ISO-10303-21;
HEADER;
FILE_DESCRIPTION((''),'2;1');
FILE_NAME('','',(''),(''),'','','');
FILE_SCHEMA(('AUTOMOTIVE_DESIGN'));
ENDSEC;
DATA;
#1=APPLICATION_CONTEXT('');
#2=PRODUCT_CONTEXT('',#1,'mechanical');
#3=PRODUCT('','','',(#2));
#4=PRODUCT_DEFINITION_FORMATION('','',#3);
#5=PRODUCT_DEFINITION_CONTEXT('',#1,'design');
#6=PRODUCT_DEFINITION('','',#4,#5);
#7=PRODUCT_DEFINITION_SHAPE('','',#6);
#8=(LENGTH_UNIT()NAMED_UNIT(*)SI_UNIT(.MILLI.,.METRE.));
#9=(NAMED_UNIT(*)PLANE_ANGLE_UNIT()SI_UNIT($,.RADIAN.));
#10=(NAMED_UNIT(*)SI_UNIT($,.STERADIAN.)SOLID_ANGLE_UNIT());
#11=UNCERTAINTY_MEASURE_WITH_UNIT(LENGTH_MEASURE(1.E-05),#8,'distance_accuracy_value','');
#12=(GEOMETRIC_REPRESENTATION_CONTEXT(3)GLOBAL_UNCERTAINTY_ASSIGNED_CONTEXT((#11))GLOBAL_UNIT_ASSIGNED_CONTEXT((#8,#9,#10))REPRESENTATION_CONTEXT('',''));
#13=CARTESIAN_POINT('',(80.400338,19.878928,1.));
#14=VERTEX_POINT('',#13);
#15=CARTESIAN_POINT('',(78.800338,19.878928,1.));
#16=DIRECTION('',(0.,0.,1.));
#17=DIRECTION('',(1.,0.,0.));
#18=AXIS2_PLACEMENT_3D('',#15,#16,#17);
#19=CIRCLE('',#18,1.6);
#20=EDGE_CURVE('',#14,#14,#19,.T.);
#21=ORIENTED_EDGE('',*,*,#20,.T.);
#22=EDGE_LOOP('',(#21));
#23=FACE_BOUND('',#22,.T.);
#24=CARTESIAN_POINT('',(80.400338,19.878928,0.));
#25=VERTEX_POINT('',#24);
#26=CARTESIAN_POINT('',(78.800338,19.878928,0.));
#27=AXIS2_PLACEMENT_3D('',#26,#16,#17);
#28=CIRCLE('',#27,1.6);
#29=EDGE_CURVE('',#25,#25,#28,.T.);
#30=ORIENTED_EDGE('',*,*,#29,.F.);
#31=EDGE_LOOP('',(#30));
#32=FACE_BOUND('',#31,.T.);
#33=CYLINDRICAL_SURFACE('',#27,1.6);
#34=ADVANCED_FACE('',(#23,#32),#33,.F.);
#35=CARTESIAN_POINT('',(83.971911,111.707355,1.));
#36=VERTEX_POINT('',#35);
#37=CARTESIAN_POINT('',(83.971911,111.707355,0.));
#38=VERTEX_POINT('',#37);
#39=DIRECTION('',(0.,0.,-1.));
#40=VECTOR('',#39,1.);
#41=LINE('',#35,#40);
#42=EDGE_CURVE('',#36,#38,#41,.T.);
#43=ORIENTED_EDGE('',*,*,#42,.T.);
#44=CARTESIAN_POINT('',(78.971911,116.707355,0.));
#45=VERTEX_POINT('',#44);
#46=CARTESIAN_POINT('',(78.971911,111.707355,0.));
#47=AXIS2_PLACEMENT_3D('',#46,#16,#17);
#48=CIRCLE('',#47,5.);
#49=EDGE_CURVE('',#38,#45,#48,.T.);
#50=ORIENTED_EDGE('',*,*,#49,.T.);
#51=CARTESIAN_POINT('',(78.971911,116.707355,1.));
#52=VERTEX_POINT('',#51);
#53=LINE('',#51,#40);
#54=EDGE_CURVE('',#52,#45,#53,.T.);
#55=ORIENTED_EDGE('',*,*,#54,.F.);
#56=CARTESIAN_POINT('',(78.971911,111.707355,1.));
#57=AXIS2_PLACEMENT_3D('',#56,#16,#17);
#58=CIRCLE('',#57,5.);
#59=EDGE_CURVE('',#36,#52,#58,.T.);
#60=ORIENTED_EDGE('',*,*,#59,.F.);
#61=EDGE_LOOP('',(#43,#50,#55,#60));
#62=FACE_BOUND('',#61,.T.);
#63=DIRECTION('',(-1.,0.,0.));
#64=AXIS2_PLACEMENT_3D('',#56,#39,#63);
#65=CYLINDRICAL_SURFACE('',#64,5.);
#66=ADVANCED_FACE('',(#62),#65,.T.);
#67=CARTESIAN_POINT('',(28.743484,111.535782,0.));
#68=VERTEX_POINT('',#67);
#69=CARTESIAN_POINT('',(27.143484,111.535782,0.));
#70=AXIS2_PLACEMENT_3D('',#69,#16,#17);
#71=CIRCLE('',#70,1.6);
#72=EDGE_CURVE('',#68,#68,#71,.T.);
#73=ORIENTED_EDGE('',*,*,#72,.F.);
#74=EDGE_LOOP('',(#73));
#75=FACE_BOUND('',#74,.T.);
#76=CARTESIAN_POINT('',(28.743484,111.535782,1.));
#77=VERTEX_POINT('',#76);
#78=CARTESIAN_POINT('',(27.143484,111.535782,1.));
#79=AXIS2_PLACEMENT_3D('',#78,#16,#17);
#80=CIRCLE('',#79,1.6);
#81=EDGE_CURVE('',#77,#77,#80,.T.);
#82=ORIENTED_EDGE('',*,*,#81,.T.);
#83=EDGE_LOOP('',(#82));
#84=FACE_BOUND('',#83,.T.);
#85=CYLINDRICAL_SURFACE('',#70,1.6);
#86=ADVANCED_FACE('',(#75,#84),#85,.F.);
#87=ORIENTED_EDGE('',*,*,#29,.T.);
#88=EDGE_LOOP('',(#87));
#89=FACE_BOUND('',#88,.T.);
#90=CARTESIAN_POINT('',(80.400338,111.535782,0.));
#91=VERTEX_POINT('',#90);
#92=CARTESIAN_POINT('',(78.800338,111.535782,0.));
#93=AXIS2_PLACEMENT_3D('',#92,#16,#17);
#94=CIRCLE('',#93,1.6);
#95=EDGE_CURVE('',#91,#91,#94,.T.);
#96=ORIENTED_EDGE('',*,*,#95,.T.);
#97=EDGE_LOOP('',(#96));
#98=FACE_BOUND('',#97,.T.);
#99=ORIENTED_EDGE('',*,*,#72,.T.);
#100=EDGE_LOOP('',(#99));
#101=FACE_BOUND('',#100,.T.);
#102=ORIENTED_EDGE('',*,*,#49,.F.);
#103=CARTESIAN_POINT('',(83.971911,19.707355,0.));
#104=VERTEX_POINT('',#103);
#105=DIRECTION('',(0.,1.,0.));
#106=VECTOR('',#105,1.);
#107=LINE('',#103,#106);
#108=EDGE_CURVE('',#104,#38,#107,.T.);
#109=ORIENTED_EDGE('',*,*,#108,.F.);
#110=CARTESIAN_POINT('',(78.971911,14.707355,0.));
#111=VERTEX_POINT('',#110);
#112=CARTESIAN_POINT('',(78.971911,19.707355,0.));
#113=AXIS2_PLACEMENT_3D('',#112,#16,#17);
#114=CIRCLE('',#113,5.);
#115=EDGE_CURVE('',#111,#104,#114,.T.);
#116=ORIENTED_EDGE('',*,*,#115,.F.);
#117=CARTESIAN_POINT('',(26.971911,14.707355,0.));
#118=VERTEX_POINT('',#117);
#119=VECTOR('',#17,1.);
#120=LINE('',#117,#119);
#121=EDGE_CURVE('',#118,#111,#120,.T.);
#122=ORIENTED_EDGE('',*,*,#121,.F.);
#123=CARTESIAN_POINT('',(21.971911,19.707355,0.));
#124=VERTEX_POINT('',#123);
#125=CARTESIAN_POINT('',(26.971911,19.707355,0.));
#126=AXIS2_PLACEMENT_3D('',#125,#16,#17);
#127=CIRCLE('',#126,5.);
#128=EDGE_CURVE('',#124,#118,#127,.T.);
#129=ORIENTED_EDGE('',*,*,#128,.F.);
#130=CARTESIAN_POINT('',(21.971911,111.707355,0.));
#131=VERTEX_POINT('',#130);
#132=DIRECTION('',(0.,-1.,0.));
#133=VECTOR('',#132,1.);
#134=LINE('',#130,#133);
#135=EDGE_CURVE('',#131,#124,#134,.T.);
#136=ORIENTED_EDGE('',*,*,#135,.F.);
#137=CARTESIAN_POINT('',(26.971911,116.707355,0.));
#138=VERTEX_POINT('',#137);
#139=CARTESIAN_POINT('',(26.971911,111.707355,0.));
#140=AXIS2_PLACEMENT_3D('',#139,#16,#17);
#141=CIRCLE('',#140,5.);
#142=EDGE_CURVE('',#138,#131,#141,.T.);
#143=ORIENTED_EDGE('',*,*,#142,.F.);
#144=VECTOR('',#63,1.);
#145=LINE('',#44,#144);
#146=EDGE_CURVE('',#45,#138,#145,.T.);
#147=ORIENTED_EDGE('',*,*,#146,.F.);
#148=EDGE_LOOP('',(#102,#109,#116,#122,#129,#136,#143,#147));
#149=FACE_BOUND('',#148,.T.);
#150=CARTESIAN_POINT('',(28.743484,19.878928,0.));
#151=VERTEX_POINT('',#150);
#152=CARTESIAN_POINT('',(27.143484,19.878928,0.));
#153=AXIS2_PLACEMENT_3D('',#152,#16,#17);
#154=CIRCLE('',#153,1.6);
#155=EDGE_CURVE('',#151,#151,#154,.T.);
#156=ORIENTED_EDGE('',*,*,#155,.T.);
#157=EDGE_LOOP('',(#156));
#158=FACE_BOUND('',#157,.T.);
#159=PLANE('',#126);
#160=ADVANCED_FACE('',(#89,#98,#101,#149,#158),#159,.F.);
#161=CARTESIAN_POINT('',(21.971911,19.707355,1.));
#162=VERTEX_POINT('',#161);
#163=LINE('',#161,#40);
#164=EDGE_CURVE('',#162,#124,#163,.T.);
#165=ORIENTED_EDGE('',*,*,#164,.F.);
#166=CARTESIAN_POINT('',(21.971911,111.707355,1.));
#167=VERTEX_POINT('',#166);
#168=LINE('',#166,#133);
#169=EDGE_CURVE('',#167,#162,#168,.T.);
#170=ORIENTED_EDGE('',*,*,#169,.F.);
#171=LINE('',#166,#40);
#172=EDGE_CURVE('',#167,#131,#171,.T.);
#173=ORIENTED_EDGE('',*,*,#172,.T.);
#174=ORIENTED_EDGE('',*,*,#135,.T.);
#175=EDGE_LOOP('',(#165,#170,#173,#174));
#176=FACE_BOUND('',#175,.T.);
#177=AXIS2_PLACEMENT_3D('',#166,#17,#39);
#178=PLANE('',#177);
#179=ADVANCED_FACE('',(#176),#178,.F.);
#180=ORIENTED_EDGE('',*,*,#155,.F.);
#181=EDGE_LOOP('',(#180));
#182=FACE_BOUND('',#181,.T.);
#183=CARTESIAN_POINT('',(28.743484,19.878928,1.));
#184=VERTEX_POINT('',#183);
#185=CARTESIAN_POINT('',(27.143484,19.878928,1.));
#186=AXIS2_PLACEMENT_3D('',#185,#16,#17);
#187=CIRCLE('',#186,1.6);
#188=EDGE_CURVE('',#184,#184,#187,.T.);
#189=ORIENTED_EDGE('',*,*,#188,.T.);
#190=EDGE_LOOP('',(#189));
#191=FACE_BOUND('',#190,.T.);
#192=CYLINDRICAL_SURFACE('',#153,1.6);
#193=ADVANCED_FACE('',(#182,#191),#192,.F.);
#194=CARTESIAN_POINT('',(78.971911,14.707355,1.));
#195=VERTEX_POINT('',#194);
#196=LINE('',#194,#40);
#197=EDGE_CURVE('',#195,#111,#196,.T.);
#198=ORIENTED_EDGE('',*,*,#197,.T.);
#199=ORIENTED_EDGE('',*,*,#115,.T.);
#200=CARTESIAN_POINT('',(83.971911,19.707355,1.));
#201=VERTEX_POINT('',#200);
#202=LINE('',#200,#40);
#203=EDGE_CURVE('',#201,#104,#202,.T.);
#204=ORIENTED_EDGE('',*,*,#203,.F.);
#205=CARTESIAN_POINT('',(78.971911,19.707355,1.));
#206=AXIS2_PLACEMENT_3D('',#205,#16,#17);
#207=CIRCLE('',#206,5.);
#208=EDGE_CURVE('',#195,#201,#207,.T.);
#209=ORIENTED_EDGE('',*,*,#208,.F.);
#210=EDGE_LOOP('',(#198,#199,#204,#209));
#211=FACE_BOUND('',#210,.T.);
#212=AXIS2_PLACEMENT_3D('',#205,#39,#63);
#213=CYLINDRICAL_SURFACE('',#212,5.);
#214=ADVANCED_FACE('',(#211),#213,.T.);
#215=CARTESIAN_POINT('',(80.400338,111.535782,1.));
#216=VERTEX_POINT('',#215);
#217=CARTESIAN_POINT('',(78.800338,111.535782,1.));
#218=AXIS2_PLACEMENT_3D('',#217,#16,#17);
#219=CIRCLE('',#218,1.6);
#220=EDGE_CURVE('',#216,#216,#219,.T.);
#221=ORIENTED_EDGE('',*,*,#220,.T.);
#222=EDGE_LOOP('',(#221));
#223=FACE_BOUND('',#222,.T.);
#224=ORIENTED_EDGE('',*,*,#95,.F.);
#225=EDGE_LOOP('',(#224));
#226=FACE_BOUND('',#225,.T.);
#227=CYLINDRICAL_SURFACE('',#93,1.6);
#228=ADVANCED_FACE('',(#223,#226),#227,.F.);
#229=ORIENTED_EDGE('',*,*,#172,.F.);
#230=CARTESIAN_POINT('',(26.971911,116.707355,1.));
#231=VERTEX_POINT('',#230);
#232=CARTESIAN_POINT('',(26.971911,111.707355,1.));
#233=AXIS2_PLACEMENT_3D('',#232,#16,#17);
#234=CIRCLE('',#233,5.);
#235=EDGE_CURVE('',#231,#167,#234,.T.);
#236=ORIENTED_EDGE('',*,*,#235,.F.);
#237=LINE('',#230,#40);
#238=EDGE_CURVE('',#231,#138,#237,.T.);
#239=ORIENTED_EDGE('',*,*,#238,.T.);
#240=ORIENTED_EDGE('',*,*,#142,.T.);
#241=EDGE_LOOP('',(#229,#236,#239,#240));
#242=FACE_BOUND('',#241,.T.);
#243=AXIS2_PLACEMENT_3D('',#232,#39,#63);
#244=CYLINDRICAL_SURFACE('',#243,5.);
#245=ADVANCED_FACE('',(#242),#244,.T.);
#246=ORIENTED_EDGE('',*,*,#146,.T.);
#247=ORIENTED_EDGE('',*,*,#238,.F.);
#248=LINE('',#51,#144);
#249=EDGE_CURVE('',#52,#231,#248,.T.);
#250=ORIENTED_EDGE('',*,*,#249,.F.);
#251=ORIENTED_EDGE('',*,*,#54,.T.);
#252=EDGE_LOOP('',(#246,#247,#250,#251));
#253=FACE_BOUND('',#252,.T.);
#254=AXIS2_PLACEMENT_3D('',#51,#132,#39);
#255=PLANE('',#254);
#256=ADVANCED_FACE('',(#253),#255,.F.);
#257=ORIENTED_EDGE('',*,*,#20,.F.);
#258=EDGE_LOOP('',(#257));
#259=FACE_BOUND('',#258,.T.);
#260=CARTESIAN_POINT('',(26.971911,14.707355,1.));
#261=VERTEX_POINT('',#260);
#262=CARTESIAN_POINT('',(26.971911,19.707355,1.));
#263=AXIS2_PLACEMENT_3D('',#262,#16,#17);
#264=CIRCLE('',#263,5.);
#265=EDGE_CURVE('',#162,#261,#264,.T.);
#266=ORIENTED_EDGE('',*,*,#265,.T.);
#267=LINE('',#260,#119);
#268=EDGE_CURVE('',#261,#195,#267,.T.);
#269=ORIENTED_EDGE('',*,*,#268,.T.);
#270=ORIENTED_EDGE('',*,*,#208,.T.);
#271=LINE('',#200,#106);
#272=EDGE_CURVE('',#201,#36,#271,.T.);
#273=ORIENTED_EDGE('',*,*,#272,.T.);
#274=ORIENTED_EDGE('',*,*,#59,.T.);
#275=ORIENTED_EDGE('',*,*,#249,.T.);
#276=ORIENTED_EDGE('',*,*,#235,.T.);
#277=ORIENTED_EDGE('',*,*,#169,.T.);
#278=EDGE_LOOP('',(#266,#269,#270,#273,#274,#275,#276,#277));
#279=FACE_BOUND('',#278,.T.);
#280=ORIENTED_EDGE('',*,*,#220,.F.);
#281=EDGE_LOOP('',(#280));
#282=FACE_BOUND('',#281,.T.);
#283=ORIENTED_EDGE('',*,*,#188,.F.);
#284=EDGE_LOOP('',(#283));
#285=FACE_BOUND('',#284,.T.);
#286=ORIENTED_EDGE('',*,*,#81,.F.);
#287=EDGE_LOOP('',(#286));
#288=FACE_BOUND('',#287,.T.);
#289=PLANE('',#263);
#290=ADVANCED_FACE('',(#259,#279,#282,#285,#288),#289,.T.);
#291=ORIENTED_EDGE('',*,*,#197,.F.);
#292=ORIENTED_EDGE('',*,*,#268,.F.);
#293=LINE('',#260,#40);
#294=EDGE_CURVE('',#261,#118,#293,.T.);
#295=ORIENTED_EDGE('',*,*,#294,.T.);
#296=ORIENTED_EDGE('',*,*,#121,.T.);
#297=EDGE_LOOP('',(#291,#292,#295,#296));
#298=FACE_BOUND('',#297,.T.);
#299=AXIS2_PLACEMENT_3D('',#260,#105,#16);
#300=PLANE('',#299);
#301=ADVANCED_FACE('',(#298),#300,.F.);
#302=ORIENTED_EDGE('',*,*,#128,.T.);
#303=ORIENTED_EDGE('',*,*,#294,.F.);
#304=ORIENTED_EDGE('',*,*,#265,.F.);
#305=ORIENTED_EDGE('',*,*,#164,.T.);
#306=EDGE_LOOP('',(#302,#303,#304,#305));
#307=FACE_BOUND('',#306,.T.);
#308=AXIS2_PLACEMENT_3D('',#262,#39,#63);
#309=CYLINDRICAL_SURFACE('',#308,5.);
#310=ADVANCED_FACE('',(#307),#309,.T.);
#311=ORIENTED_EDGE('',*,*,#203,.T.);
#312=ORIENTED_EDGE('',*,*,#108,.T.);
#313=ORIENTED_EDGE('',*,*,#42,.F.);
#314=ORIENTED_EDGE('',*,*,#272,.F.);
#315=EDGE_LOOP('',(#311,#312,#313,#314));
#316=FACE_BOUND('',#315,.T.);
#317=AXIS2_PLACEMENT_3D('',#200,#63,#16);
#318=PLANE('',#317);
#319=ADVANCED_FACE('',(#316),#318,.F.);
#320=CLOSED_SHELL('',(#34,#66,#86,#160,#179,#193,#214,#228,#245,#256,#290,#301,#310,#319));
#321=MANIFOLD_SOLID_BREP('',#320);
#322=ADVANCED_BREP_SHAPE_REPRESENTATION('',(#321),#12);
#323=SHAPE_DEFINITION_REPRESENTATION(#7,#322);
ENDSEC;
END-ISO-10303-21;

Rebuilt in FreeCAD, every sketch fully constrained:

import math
import FreeCAD as App
import Part
import Sketcher
Q = App.Units.Quantity

doc = App.newDocument("Part")
params = doc.addObject("Spreadsheet::Sheet", "Params")
for row, (alias, value) in enumerate([
    ("sketch1_radius", "5 mm"),
    ("sketch1_width", "52 mm"),
    ("sketch1_height", "92 mm"),
    ("pad1_length", "1 mm"),
    ("sketch2_diameter", "3.2 mm"),
], start=1):
    params.set(f"A{row}", alias)
    params.set(f"B{row}", "=" + value)
    params.setAlias(f"B{row}", alias)

body = doc.addObject("PartDesign::Body", "Body")

sketch1 = doc.addObject("Sketcher::SketchObject", "Sketch")
body.addObject(sketch1)
sketch1.AttachmentSupport = (doc.XY_Plane, [""])
sketch1.MapMode = "FlatFace"
sketch1.addGeometry([
    Part.LineSegment(App.Vector(27, 15, 0), App.Vector(79, 15, 0)),
    Part.ArcOfCircle(Part.Circle(App.Vector(79, 20, 0), App.Vector(0, 0, 1), 5), math.radians(-90), math.radians(0)),
    Part.LineSegment(App.Vector(84, 20, 0), App.Vector(84, 112, 0)),
    Part.ArcOfCircle(Part.Circle(App.Vector(79, 112, 0), App.Vector(0, 0, 1), 5), math.radians(0), math.radians(90)),
    Part.LineSegment(App.Vector(79, 117, 0), App.Vector(27, 117, 0)),
    Part.ArcOfCircle(Part.Circle(App.Vector(27, 112, 0), App.Vector(0, 0, 1), 5), math.radians(90), math.radians(180)),
    Part.LineSegment(App.Vector(22, 112, 0), App.Vector(22, 20, 0)),
    Part.ArcOfCircle(Part.Circle(App.Vector(27, 20, 0), App.Vector(0, 0, 1), 5), math.radians(180), math.radians(270)),
], False)
sketch1.addConstraint([
    Sketcher.Constraint("Tangent", 0, 2, 1, 1),
    Sketcher.Constraint("Tangent", 1, 2, 2, 1),
    Sketcher.Constraint("Tangent", 2, 2, 3, 1),
    Sketcher.Constraint("Tangent", 3, 2, 4, 1),
    Sketcher.Constraint("Tangent", 4, 2, 5, 1),
    Sketcher.Constraint("Tangent", 5, 2, 6, 1),
    Sketcher.Constraint("Tangent", 6, 2, 7, 1),
    Sketcher.Constraint("Tangent", 7, 2, 0, 1),
    Sketcher.Constraint("Horizontal", 0),
    Sketcher.Constraint("Vertical", 2),
    Sketcher.Constraint("Horizontal", 4),
    Sketcher.Constraint("Vertical", 6),
    Sketcher.Constraint("Equal", 1, 3),
    Sketcher.Constraint("Equal", 3, 5),
    Sketcher.Constraint("Equal", 5, 7),
    Sketcher.Constraint("Radius", 1, Q("5 mm")),
    Sketcher.Constraint("DistanceX", 0, 1, 0, 2, Q("52 mm")),
    Sketcher.Constraint("DistanceY", 2, 1, 2, 2, Q("92 mm")),
    Sketcher.Constraint("DistanceX", -1, 1, 1, 3, Q("78.971911 mm")),
    Sketcher.Constraint("DistanceY", -1, 1, 1, 3, Q("19.707355 mm")),
])
sketch1.setExpression("Constraints[15]", "Params.sketch1_radius")
sketch1.setExpression("Constraints[16]", "Params.sketch1_width")
sketch1.setExpression("Constraints[17]", "Params.sketch1_height")
pad1 = doc.addObject("PartDesign::Pad", "Pad")
body.addObject(pad1)
pad1.Profile = sketch1
pad1.setExpression("Length", "Params.pad1_length")

sketch2 = doc.addObject("Sketcher::SketchObject", "Sketch001")
body.addObject(sketch2)
sketch2.AttachmentSupport = (doc.XY_Plane, [""])
sketch2.MapMode = "FlatFace"
sketch2.AttachmentOffset = App.Placement(App.Vector(0, 0, 1), App.Rotation())
sketch2.addGeometry([
    Part.Circle(App.Vector(27.1, 19.9, 0), App.Vector(0, 0, 1), 1.6),
    Part.Circle(App.Vector(78.8, 19.9, 0), App.Vector(0, 0, 1), 1.6),
    Part.Circle(App.Vector(27.1, 111.5, 0), App.Vector(0, 0, 1), 1.6),
    Part.Circle(App.Vector(78.8, 111.5, 0), App.Vector(0, 0, 1), 1.6),
], False)
sketch2.addConstraint([
    Sketcher.Constraint("Equal", 0, 1),
    Sketcher.Constraint("Equal", 1, 2),
    Sketcher.Constraint("Equal", 2, 3),
    Sketcher.Constraint("Horizontal", 0, 3, 1, 3),
    Sketcher.Constraint("Horizontal", 2, 3, 3, 3),
    Sketcher.Constraint("Vertical", 0, 3, 2, 3),
    Sketcher.Constraint("Vertical", 1, 3, 3, 3),
    Sketcher.Constraint("Diameter", 0, Q("3.2 mm")),
    Sketcher.Constraint("DistanceX", -1, 1, 1, 3, Q("78.800338 mm")),
    Sketcher.Constraint("DistanceX", -1, 1, 0, 3, Q("27.143484 mm")),
    Sketcher.Constraint("DistanceY", -1, 1, 0, 3, Q("19.878928 mm")),
    Sketcher.Constraint("DistanceY", -1, 1, 2, 3, Q("111.535782 mm")),
])
sketch2.setExpression("Constraints[7]", "Params.sketch2_diameter")
pocket1 = doc.addObject("PartDesign::Pocket", "Pocket")
body.addObject(pocket1)
pocket1.Profile = sketch2
pocket1.Type = "ThroughAll"
pocket1.Midplane = True

doc.recompute()
